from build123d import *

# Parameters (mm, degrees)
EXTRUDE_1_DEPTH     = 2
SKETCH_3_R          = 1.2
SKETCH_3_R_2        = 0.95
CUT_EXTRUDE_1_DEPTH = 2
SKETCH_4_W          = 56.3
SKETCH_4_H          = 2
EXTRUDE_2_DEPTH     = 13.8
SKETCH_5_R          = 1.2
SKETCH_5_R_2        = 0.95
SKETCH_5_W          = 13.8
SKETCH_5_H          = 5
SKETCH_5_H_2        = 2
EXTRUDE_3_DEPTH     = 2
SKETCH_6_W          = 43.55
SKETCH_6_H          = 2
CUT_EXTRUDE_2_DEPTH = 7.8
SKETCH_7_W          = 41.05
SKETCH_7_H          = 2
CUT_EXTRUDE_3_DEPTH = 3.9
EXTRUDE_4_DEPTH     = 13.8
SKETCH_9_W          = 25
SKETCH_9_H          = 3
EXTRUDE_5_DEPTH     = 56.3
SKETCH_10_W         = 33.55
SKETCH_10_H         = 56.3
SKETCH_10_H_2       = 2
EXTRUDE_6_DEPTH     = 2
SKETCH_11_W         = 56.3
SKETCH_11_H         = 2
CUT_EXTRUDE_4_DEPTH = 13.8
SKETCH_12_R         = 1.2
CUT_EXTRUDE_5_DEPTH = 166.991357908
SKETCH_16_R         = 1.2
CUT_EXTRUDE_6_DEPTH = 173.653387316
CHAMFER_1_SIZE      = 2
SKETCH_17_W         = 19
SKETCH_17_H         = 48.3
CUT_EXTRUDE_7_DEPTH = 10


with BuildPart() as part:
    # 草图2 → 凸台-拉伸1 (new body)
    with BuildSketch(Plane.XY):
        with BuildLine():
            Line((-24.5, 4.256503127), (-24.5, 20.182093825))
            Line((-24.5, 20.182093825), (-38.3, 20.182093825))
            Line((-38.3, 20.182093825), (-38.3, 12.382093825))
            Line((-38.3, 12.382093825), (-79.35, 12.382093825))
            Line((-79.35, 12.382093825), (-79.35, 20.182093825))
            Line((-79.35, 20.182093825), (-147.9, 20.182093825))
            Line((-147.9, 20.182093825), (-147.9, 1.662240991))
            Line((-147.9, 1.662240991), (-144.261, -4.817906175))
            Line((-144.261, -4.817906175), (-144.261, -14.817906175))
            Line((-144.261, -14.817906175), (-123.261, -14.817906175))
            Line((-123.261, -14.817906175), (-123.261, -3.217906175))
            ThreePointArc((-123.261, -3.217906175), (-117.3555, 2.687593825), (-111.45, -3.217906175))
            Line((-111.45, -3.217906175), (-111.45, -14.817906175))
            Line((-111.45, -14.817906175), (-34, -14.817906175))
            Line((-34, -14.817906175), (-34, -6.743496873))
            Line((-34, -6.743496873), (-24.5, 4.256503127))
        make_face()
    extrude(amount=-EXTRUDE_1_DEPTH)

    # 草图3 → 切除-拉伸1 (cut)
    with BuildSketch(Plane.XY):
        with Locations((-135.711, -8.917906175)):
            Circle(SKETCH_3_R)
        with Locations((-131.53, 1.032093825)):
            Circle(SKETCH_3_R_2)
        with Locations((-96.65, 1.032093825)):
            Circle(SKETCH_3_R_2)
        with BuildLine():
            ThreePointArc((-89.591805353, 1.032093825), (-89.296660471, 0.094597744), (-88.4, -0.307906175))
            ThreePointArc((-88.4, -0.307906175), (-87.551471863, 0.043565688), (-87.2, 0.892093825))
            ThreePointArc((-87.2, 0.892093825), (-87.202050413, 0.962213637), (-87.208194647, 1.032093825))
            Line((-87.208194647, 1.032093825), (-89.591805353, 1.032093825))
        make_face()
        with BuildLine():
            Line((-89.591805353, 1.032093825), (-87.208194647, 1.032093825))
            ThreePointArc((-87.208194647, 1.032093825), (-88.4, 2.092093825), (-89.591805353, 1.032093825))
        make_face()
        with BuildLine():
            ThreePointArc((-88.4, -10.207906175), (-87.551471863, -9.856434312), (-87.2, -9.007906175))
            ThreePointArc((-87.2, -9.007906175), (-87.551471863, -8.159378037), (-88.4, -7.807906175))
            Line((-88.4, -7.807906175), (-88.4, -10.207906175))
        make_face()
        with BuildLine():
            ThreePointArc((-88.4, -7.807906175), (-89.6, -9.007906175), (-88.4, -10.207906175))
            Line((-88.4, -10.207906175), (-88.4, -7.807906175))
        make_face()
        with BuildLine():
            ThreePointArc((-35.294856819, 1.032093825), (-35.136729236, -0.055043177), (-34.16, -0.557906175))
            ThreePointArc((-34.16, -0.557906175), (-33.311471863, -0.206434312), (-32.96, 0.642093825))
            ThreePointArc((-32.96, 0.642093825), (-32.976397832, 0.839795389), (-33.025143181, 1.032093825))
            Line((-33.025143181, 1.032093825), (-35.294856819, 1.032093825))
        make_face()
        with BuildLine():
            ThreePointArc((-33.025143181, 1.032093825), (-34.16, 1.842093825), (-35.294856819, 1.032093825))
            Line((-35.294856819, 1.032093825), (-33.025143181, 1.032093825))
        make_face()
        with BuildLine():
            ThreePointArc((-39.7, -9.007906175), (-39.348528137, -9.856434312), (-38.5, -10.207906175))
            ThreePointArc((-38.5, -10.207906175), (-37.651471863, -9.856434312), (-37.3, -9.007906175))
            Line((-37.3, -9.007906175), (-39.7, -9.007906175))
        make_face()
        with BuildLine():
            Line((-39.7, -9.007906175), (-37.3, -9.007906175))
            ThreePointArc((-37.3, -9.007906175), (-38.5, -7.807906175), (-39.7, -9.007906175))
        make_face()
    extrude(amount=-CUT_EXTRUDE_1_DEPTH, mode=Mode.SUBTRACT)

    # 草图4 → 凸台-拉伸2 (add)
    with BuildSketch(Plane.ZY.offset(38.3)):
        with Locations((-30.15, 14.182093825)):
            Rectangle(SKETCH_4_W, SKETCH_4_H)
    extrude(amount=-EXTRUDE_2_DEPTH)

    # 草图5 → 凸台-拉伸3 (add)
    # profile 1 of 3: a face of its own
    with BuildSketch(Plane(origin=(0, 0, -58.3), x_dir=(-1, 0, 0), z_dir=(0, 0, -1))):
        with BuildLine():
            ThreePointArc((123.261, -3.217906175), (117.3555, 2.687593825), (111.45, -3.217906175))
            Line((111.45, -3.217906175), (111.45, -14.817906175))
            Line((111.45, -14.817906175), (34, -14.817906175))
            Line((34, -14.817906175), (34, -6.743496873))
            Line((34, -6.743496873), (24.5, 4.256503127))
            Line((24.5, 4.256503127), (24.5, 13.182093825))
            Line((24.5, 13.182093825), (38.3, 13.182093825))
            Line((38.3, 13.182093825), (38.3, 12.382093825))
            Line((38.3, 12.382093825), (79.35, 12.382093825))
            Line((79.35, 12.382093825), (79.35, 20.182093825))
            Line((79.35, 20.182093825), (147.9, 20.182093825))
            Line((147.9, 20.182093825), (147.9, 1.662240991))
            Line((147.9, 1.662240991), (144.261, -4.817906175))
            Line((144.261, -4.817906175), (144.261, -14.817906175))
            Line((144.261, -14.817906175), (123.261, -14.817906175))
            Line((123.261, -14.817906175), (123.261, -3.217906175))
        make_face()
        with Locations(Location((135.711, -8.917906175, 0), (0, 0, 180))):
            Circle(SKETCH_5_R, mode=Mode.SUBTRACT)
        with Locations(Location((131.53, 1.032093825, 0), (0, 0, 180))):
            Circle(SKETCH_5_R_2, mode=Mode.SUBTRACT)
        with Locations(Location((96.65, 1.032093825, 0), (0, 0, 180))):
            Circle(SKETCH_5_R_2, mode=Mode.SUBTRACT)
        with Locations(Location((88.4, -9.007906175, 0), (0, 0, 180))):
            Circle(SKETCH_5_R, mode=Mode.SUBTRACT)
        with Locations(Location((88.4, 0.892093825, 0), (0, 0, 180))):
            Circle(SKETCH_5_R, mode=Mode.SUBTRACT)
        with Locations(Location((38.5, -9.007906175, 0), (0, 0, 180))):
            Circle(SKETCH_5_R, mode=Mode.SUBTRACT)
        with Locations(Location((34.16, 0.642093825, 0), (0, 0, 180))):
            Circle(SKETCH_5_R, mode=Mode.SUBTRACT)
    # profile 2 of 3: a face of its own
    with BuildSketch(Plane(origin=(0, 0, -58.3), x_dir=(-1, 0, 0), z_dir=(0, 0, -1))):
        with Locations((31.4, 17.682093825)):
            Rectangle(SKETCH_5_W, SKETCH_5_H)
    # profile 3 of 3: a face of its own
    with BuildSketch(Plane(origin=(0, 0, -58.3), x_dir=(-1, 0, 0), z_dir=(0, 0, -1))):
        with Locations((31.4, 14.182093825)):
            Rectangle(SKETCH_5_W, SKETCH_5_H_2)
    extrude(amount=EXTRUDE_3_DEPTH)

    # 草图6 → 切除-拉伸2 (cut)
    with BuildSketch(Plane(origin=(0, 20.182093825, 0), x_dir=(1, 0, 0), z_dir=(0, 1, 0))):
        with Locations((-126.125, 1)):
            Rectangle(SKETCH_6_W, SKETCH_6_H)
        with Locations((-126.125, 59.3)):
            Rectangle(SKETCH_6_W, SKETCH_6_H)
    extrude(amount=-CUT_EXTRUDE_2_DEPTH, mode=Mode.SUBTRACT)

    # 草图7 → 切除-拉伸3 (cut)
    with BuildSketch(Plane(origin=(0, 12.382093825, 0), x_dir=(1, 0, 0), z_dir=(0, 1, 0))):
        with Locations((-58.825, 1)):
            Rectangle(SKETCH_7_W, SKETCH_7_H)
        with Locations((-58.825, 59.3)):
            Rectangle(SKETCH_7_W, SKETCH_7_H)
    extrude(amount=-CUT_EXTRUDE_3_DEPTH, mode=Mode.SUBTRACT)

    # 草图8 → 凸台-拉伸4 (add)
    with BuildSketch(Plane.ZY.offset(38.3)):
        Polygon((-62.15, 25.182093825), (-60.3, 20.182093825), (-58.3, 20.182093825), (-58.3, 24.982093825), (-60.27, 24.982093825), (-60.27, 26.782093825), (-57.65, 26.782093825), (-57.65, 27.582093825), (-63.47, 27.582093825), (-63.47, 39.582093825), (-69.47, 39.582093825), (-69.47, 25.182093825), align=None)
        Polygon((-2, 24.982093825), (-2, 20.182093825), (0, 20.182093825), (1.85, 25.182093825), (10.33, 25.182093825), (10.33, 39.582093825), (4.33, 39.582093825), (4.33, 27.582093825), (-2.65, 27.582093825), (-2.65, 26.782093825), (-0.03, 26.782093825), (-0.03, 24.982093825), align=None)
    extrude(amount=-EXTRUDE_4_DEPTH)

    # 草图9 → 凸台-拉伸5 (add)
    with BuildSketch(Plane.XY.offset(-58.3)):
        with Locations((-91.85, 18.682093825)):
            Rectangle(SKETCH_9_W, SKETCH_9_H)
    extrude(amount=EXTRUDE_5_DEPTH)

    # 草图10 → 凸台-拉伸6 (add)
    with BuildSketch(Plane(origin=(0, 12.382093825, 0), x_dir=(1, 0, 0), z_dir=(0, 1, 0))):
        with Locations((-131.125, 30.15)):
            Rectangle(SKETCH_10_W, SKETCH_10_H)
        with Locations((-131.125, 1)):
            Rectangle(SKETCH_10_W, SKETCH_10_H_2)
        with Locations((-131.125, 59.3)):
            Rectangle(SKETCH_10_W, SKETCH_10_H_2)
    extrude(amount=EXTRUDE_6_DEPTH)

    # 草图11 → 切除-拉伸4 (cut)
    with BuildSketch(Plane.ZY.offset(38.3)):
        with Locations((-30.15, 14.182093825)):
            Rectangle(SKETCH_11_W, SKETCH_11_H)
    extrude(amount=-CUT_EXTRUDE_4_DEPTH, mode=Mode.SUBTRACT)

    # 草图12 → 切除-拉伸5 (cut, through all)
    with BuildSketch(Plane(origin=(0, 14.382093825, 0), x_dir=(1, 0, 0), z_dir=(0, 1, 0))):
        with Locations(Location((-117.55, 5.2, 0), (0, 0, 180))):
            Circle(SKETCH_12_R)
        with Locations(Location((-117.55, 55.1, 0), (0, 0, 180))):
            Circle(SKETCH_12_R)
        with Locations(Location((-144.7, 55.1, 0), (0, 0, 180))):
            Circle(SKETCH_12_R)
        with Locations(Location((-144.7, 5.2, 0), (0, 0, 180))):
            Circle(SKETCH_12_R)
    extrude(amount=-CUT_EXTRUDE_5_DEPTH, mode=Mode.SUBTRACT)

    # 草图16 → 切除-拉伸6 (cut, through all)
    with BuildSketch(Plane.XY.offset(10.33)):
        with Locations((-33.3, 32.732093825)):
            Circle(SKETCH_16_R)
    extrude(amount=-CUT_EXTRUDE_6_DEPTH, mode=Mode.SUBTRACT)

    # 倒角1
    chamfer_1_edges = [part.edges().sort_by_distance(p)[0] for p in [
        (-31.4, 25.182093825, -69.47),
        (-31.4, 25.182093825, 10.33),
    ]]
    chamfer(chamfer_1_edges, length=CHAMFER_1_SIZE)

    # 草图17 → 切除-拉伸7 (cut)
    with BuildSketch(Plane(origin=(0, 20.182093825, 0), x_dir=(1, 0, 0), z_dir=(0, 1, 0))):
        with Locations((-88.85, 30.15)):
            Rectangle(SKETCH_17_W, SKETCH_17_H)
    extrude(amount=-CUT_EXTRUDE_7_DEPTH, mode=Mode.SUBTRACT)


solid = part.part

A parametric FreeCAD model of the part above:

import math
import FreeCAD as App
import Part
import Sketcher

V = App.Vector
Q = App.Units.Quantity


def edges_at(feature, points):
    """Names of the edges that pass closest to the given points."""
    edges = feature.Shape.Edges
    near = lambda p: min(range(len(edges)), key=lambda i: edges[i].distToShape(Part.Vertex(*p))[0])
    return sorted({f"Edge{near(p) + 1}" for p in points})


def add_polygon(sketch, points):
    """Adds a closed chain of lines whose ends are joined by coincident constraints."""
    first, n = sketch.GeometryCount, len(points)
    for a, b in zip(points, points[1:] + points[:1]):
        sketch.addGeometry(Part.LineSegment(App.Vector(*a, 0), App.Vector(*b, 0)), False)
    for i in range(n):
        sketch.addConstraint(Sketcher.Constraint("Coincident", first + i, 2, first + (i + 1) % n, 1))

doc = App.newDocument("Part")
params = doc.addObject("Spreadsheet::Sheet", "Params")
for row, (alias, value) in enumerate([
    ("sketch1_width", "21 mm"),
    ("sketch1_height", "10 mm"),
    ("sketch1_width2", "13.8 mm"),
    ("sketch1_height2", "7.8 mm"),
    ("sketch1_height3", "11.6 mm"),
    ("pad1_length", "2 mm"),
    ("sketch2_diameter", "2.4 mm"),
    ("sketch2_diameter2", "1.9 mm"),
    ("pocket1_length", "2 mm"),
    ("sketch3_width", "2 mm"),
    ("sketch3_height", "56.3 mm"),
    ("pad2_length", "13.8 mm"),
    ("sketch4_diameter", "2.4 mm"),
    ("sketch4_diameter2", "1.9 mm"),
    ("sketch4_width", "21 mm"),
    ("sketch4_height", "10 mm"),
    ("sketch4_width2", "13.8 mm"),
    ("pad3_length", "2 mm"),
    ("sketch5_height", "2 mm"),
    ("sketch5_width", "43.55 mm"),
    ("pocket2_length", "7.8 mm"),
    ("sketch6_height", "2 mm"),
    ("sketch6_width", "41.05 mm"),
    ("pocket3_length", "3.9 mm"),
    ("sketch7_width", "12 mm"),
    ("sketch7_height", "2 mm"),
    ("sketch7_height2", "6 mm"),
    ("sketch7_width2", "4.8 mm"),
    ("sketch7_width3", "1.8 mm"),
    ("pad4_length", "13.8 mm"),
    ("sketch8_width", "25 mm"),
    ("sketch8_height", "3 mm"),
    ("pad5_length", "56.3 mm"),
    ("sketch9_height", "60.3 mm"),
    ("sketch9_width", "33.55 mm"),
    ("pad6_length", "2 mm"),
    ("sketch10_width", "2 mm"),
    ("sketch10_height", "56.3 mm"),
    ("pocket4_length", "13.8 mm"),
    ("sketch11_diameter", "2.4 mm"),
    ("sketch12_diameter", "2.4 mm"),
    ("chamfer_size", "2 mm"),
    ("sketch13_width", "19 mm"),
    ("sketch13_height", "48.3 mm"),
    ("pocket7_length", "10 mm"),
], start=1):
    params.set(f"A{row}", alias)
    params.set(f"B{row}", "=" + value)
    params.setAlias(f"B{row}", alias)

body = doc.addObject("PartDesign::Body", "Body")

sketch1 = doc.addObject("Sketcher::SketchObject", "Sketch")
body.addObject(sketch1)
sketch1.AttachmentSupport = (doc.XY_Plane, [""])
sketch1.MapMode = "FlatFace"
sketch1.addGeometry([
    Part.LineSegment(V(-24, 4, 0), V(-24, 20, 0)),
    Part.LineSegment(V(-24, 20, 0), V(-38, 20, 0)),
    Part.LineSegment(V(-38, 20, 0), V(-38, 12, 0)),
    Part.LineSegment(V(-38, 12, 0), V(-79, 12, 0)),
    Part.LineSegment(V(-79, 12, 0), V(-79, 20, 0)),
    Part.LineSegment(V(-79, 20, 0), V(-148, 20, 0)),
    Part.LineSegment(V(-148, 20, 0), V(-148, 2, 0)),
    Part.LineSegment(V(-148, 2, 0), V(-144, -5, 0)),
    Part.LineSegment(V(-144, -5, 0), V(-144, -15, 0)),
    Part.LineSegment(V(-144, -15, 0), V(-123, -15, 0)),
    Part.LineSegment(V(-123, -15, 0), V(-123, -3, 0)),
    Part.ArcOfCircle(Part.Circle(V(-117, -3, 0), V(0, 0, 1), 6), math.radians(0), math.radians(180)),
    Part.LineSegment(V(-111, -3, 0), V(-111, -15, 0)),
    Part.LineSegment(V(-111, -15, 0), V(-34, -15, 0)),
    Part.LineSegment(V(-34, -15, 0), V(-34, -7, 0)),
    Part.LineSegment(V(-34, -7, 0), V(-24, 4, 0)),
], False)
sketch1.addConstraint([
    Sketcher.Constraint("Coincident", 0, 2, 1, 1),
    Sketcher.Constraint("Coincident", 1, 2, 2, 1),
    Sketcher.Constraint("Coincident", 2, 2, 3, 1),
    Sketcher.Constraint("Coincident", 3, 2, 4, 1),
    Sketcher.Constraint("Coincident", 4, 2, 5, 1),
    Sketcher.Constraint("Coincident", 5, 2, 6, 1),
    Sketcher.Constraint("Coincident", 6, 2, 7, 1),
    Sketcher.Constraint("Coincident", 7, 2, 8, 1),
    Sketcher.Constraint("Coincident", 8, 2, 9, 1),
    Sketcher.Constraint("Coincident", 9, 2, 10, 1),
    Sketcher.Constraint("Tangent", 10, 2, 11, 2),
    Sketcher.Constraint("Tangent", 11, 1, 12, 1),
    Sketcher.Constraint("Coincident", 12, 2, 13, 1),
    Sketcher.Constraint("Coincident", 13, 2, 14, 1),
    Sketcher.Constraint("Coincident", 14, 2, 15, 1),
    Sketcher.Constraint("Coincident", 15, 2, 0, 1),
    Sketcher.Constraint("Vertical", 0),
    Sketcher.Constraint("Horizontal", 1),
    Sketcher.Constraint("Vertical", 2),
    Sketcher.Constraint("Horizontal", 3),
    Sketcher.Constraint("Vertical", 4),
    Sketcher.Constraint("Horizontal", 5),
    Sketcher.Constraint("Vertical", 6),
    Sketcher.Constraint("Vertical", 8),
    Sketcher.Constraint("Horizontal", 9),
    Sketcher.Constraint("Vertical", 10),
    Sketcher.Constraint("Vertical", 12),
    Sketcher.Constraint("Horizontal", 13),
    Sketcher.Constraint("Vertical", 14),
    Sketcher.Constraint("Horizontal", 1, 2, 4, 2),
    Sketcher.Constraint("Horizontal", 9, 2, 12, 2),
    Sketcher.Constraint("DistanceX", 9, 1, 9, 2, Q("21 mm")),
    Sketcher.Constraint("DistanceY", 8, 2, 8, 1, Q("10 mm")),
    Sketcher.Constraint("DistanceX", 1, 2, 1, 1, Q("13.8 mm")),
    Sketcher.Constraint("DistanceY", 2, 2, 2, 1, Q("7.8 mm")),
    Sketcher.Constraint("DistanceY", 10, 1, 10, 2, Q("11.6 mm")),
    Sketcher.Constraint("DistanceX", 13, 2, -1, 1, Q("34 mm")),
    Sketcher.Constraint("DistanceY", 7, 2, 5, 2, Q("25 mm")),
    Sketcher.Constraint("DistanceY", 14, 2, 15, 2, Q("11 mm")),
    Sketcher.Constraint("DistanceX", 3, 2, 3, 1, Q("41.05 mm")),
    Sketcher.Constraint("DistanceX", 5, 2, 5, 1, Q("68.55 mm")),
    Sketcher.Constraint("DistanceX", 13, 1, 13, 2, Q("77.45 mm")),
    Sketcher.Constraint("DistanceX", 0, 2, -1, 1, Q("24.5 mm")),
    Sketcher.Constraint("Radius", 11, Q("5.9055 mm")),
    Sketcher.Constraint("Distance", 7, Q("7.432 mm")),
    Sketcher.Constraint("DistanceY", 0, 1, 0, 2, Q("15.925591 mm")),
    Sketcher.Constraint("DistanceY", -1, 1, 6, 2, Q("1.662241 mm")),
])
sketch1.setExpression("Constraints[31]", "Params.sketch1_width")
sketch1.setExpression("Constraints[32]", "Params.sketch1_height")
sketch1.setExpression("Constraints[33]", "Params.sketch1_width2")
sketch1.setExpression("Constraints[34]", "Params.sketch1_height2")
sketch1.setExpression("Constraints[35]", "Params.sketch1_height3")
pad1 = doc.addObject("PartDesign::Pad", "Pad")
body.addObject(pad1)
pad1.Profile = sketch1
pad1.setExpression("Length", "Params.pad1_length")
pad1.Reversed = True

sketch2 = doc.addObject("Sketcher::SketchObject", "Sketch001")
body.addObject(sketch2)
sketch2.AttachmentSupport = (doc.XY_Plane, [""])
sketch2.MapMode = "FlatFace"
sketch2.addGeometry([
    Part.Circle(V(-135.71, -8.92, 0), V(0, 0, 1), 1.2),
    Part.Circle(V(-131.53, 1.03, 0), V(0, 0, 1), 0.95),
    Part.Circle(V(-96.65, 1.03, 0), V(0, 0, 1), 0.95),
    Part.ArcOfCircle(Part.Circle(V(-88.4, 0.89, 0), V(0, 0, 1), 1.2), math.radians(-90), math.radians(0)),
    Part.ArcOfCircle(Part.Circle(V(-88.4, 0.89, 0), V(0, 0, 1), 1.2), math.radians(0), math.radians(6.7)),
    Part.ArcOfCircle(Part.Circle(V(-88.4, 0.89, 0), V(0, 0, 1), 1.2), math.radians(7), math.radians(173)),
    Part.ArcOfCircle(Part.Circle(V(-88.4, 0.89, 0), V(0, 0, 1), 1.2), math.radians(173), math.radians(270)),
    Part.ArcOfCircle(Part.Circle(V(-88.4, -9.01, 0), V(0, 0, 1), 1.2), math.radians(-90), math.radians(0)),
    Part.ArcOfCircle(Part.Circle(V(-88.4, -9.01, 0), V(0, 0, 1), 1.2), math.radians(0), math.radians(90)),
    Part.ArcOfCircle(Part.Circle(V(-88.4, -9.01, 0), V(0, 0, 1), 1.2), math.radians(90), math.radians(270)),
    Part.ArcOfCircle(Part.Circle(V(-34.16, 0.64, 0), V(0, 0, 1), 1.2), math.radians(-90), math.radians(0)),
    Part.ArcOfCircle(Part.Circle(V(-34.16, 0.64, 0), V(0, 0, 1), 1.2), math.radians(0), math.radians(18.97)),
    Part.ArcOfCircle(Part.Circle(V(-34.16, 0.64, 0), V(0, 0, 1), 1.2), math.radians(19), math.radians(161)),
    Part.ArcOfCircle(Part.Circle(V(-34.16, 0.64, 0), V(0, 0, 1), 1.2), math.radians(161), math.radians(270)),
    Part.ArcOfCircle(Part.Circle(V(-38.5, -9.01, 0), V(0, 0, 1), 1.2), math.radians(-180), math.radians(-90)),
    Part.ArcOfCircle(Part.Circle(V(-38.5, -9.01, 0), V(0, 0, 1), 1.2), math.radians(-90), math.radians(0)),
    Part.ArcOfCircle(Part.Circle(V(-38.5, -9.01, 0), V(0, 0, 1), 1.2), math.radians(0), math.radians(180)),
], False)
sketch2.addConstraint([
    Sketcher.Constraint("Tangent", 3, 2, 4, 1),
    Sketcher.Constraint("Tangent", 4, 2, 5, 1),
    Sketcher.Constraint("Tangent", 5, 2, 6, 1),
    Sketcher.Constraint("Tangent", 6, 2, 3, 1),
    Sketcher.Constraint("Tangent", 7, 2, 8, 1),
    Sketcher.Constraint("Tangent", 8, 2, 9, 1),
    Sketcher.Constraint("Tangent", 9, 2, 7, 1),
    Sketcher.Constraint("Tangent", 10, 2, 11, 1),
    Sketcher.Constraint("Tangent", 11, 2, 12, 1),
    Sketcher.Constraint("Tangent", 12, 2, 13, 1),
    Sketcher.Constraint("Tangent", 13, 2, 10, 1),
    Sketcher.Constraint("Tangent", 14, 2, 15, 1),
    Sketcher.Constraint("Tangent", 15, 2, 16, 1),
    Sketcher.Constraint("Tangent", 16, 2, 14, 1),
    Sketcher.Constraint("Equal", 1, 2),
    Sketcher.Constraint("Equal", 0, 3),
    Sketcher.Constraint("Equal", 3, 4),
    Sketcher.Constraint("Equal", 6, 7),
    Sketcher.Constraint("Equal", 9, 10),
    Sketcher.Constraint("Equal", 10, 11),
    Sketcher.Constraint("Equal", 13, 14),
    Sketcher.Constraint("Horizontal", 1, 3, 2, 3),
    Sketcher.Constraint("Horizontal", 9, 3, 14, 3),
    Sketcher.Constraint("Horizontal", 6, 3, 3, 2),
    Sketcher.Constraint("Horizontal", 2, 3, 4, 2),
    Sketcher.Constraint("Horizontal", 4, 2, 5, 2),
    Sketcher.Constraint("Horizontal", 16, 3, 7, 2),
    Sketcher.Constraint("Horizontal", 13, 3, 10, 2),
    Sketcher.Constraint("Horizontal", 5, 2, 11, 2),
    Sketcher.Constraint("Horizontal", 11, 2, 12, 2),
    Sketcher.Constraint("Horizontal", 7, 2, 15, 2),
    Sketcher.Constraint("Horizontal", 15, 2, 16, 2),
    Sketcher.Constraint("Vertical", 6, 3, 7, 3),
    Sketcher.Constraint("Vertical", 9, 3, 6, 2),
    Sketcher.Constraint("Vertical", 6, 2, 8, 2),
    Sketcher.Constraint("Vertical", 8, 2, 9, 2),
    Sketcher.Constraint("Vertical", 12, 3, 13, 2),
    Sketcher.Constraint("Vertical", 16, 3, 14, 2),
    Sketcher.Constraint("Diameter", 0, Q("2.4 mm")),
    Sketcher.Constraint("Diameter", 1, Q("1.9 mm")),
    Sketcher.Constraint("DistanceX", 3, 3, -1, 1, Q("88.4 mm")),
    Sketcher.Constraint("DistanceX", 14, 3, -1, 1, Q("38.5 mm")),
    Sketcher.Constraint("DistanceY", 7, 3, 5, 3, Q("9.9 mm")),
    Sketcher.Constraint("DistanceX", 1, 3, -1, 1, Q("131.53 mm")),
    Sketcher.Constraint("DistanceX", 2, 3, -1, 1, Q("96.65 mm")),
    Sketcher.Constraint("DistanceX", 10, 3, -1, 1, Q("34.16 mm")),
    Sketcher.Constraint("DistanceY", 0, 3, 1, 3, Q("9.95 mm")),
    Sketcher.Constraint("DistanceY", 3, 3, 2, 3, Q("0.14 mm")),
    Sketcher.Constraint("DistanceY", 10, 3, 4, 3, Q("0.25 mm")),
    Sketcher.Constraint("DistanceX", 0, 3, -1, 1, Q("135.711 mm")),
    Sketcher.Constraint("DistanceY", 0, 3, -1, 1, Q("8.917906 mm")),
])
sketch2.setExpression("Constraints[38]", "Params.sketch2_diameter")
sketch2.setExpression("Constraints[39]", "Params.sketch2_diameter2")
pocket1 = doc.addObject("PartDesign::Pocket", "Pocket")
body.addObject(pocket1)
pocket1.Profile = sketch2
pocket1.setExpression("Length", "Params.pocket1_length")

sketch3 = doc.addObject("Sketcher::SketchObject", "Sketch002")
body.addObject(sketch3)
sketch3.AttachmentSupport = (doc.YZ_Plane, [""])
sketch3.MapMode = "FlatFace"
sketch3.AttachmentOffset = App.Placement(V(0, 0, -38.3), App.Rotation())
add_polygon(sketch3, [(15.2, -58.3), (13.2, -58.3), (13.2, -2), (15.2, -2)])
sketch3.addConstraint([
    Sketcher.Constraint("Horizontal", 0),
    Sketcher.Constraint("Vertical", 1),
    Sketcher.Constraint("Horizontal", 2),
    Sketcher.Constraint("Vertical", 3),
    Sketcher.Constraint("DistanceX", 0, 2, 0, 1, Q("2 mm")),
    Sketcher.Constraint("DistanceY", 1, 1, 1, 2, Q("56.3 mm")),
    Sketcher.Constraint("DistanceY", 1, 2, -1, 1, Q("2 mm")),
    Sketcher.Constraint("DistanceX", -1, 1, 0, 2, Q("13.182094 mm")),
])
sketch3.setExpression("Constraints[8]", "Params.sketch3_width")
sketch3.setExpression("Constraints[9]", "Params.sketch3_height")
pad2 = doc.addObject("PartDesign::Pad", "Pad001")
body.addObject(pad2)
pad2.Profile = sketch3
pad2.setExpression("Length", "Params.pad2_length")

sketch4 = doc.addObject("Sketcher::SketchObject", "Sketch003")
body.addObject(sketch4)
sketch4.AttachmentSupport = (doc.XY_Plane, [""])
sketch4.MapMode = "FlatFace"
sketch4.AttachmentOffset = App.Placement(V(0, 0, -58.3), App.Rotation())
sketch4.addGeometry([
    Part.ArcOfCircle(Part.Circle(V(-117.4, -3.2, 0), V(0, 0, 1), 5.9), math.radians(0), math.radians(180)),
    Part.LineSegment(V(-123.3, -3.2, 0), V(-123.3, -14.8, 0)),
    Part.LineSegment(V(-123.3, -14.8, 0), V(-144.3, -14.8, 0)),
    Part.LineSegment(V(-144.3, -14.8, 0), V(-144.3, -4.8, 0)),
    Part.LineSegment(V(-144.3, -4.8, 0), V(-147.9, 1.7, 0)),
    Part.LineSegment(V(-147.9, 1.7, 0), V(-147.9, 20.2, 0)),
    Part.LineSegment(V(-147.9, 20.2, 0), V(-79.3, 20.2, 0)),
    Part.LineSegment(V(-79.3, 20.2, 0), V(-79.3, 12.4, 0)),
    Part.LineSegment(V(-79.3, 12.4, 0), V(-38.3, 12.4, 0)),
    Part.LineSegment(V(-38.3, 12.4, 0), V(-38.3, 20.2, 0)),
    Part.LineSegment(V(-38.3, 20.2, 0), V(-24.5, 20.2, 0)),
    Part.LineSegment(V(-24.5, 20.2, 0), V(-24.5, 4.3, 0)),
    Part.LineSegment(V(-24.5, 4.3, 0), V(-34, -6.7, 0)),
    Part.LineSegment(V(-34, -6.7, 0), V(-34, -14.8, 0)),
    Part.LineSegment(V(-34, -14.8, 0), V(-111.5, -14.8, 0)),
    Part.LineSegment(V(-111.5, -14.8, 0), V(-111.5, -3.2, 0)),
    Part.Circle(V(-135.7, -8.9, 0), V(0, 0, 1), 1.2),
    Part.Circle(V(-88.4, -9, 0), V(0, 0, 1), 1.2),
    Part.Circle(V(-38.5, -9, 0), V(0, 0, 1), 1.2),
    Part.Circle(V(-131.5, 1, 0), V(0, 0, 1), 0.9),
    Part.Circle(V(-96.7, 1, 0), V(0, 0, 1), 0.9),
    Part.Circle(V(-88.4, 0.9, 0), V(0, 0, 1), 1.2),
    Part.Circle(V(-34.2, 0.6, 0), V(0, 0, 1), 1.2),
], False)
sketch4.addConstraint([
    Sketcher.Constraint("Tangent", 0, 2, 1, 1),
    Sketcher.Constraint("Coincident", 1, 2, 2, 1),
    Sketcher.Constraint("Coincident", 2, 2, 3, 1),
    Sketcher.Constraint("Coincident", 3, 2, 4, 1),
    Sketcher.Constraint("Coincident", 4, 2, 5, 1),
    Sketcher.Constraint("Coincident", 5, 2, 6, 1),
    Sketcher.Constraint("Coincident", 6, 2, 7, 1),
    Sketcher.Constraint("Coincident", 7, 2, 8, 1),
    Sketcher.Constraint("Coincident", 8, 2, 9, 1),
    Sketcher.Constraint("Coincident", 9, 2, 10, 1),
    Sketcher.Constraint("Coincident", 10, 2, 11, 1),
    Sketcher.Constraint("Coincident", 11, 2, 12, 1),
    Sketcher.Constraint("Coincident", 12, 2, 13, 1),
    Sketcher.Constraint("Coincident", 13, 2, 14, 1),
    Sketcher.Constraint("Coincident", 14, 2, 15, 1),
    Sketcher.Constraint("Tangent", 15, 2, 0, 1),
    Sketcher.Constraint("Vertical", 1),
    Sketcher.Constraint("Horizontal", 2),
    Sketcher.Constraint("Vertical", 3),
    Sketcher.Constraint("Vertical", 5),
    Sketcher.Constraint("Horizontal", 6),
    Sketcher.Constraint("Vertical", 7),
    Sketcher.Constraint("Horizontal", 8),
    Sketcher.Constraint("Vertical", 9),
    Sketcher.Constraint("Horizontal", 10),
    Sketcher.Constraint("Vertical", 11),
    Sketcher.Constraint("Vertical", 13),
    Sketcher.Constraint("Horizontal", 14),
    Sketcher.Constraint("Vertical", 15),
    Sketcher.Constraint("Equal", 16, 17),
    Sketcher.Constraint("Equal", 17, 18),
    Sketcher.Constraint("Equal", 19, 20),
    Sketcher.Constraint("Equal", 18, 21),
    Sketcher.Constraint("Equal", 21, 22),
    Sketcher.Constraint("Horizontal", 17, 3, 18, 3),
    Sketcher.Constraint("Horizontal", 19, 3, 20, 3),
    Sketcher.Constraint("Horizontal", 6, 2, 9, 2),
    Sketcher.Constraint("Horizontal", 2, 2, 13, 2),
    Sketcher.Constraint("Vertical", 17, 3, 21, 3),
    Sketcher.Constraint("Diameter", 16, Q("2.4 mm")),
    Sketcher.Constraint("Diameter", 19, Q("1.9 mm")),
    Sketcher.Constraint("DistanceX", 2, 2, 2, 1, Q("21 mm")),
    Sketcher.Constraint("DistanceY", 3, 1, 3, 2, Q("10 mm")),
    Sketcher.Constraint("DistanceX", 10, 1, 10, 2, Q("13.8 mm")),
    Sketcher.Constraint("DistanceY", 1, 2, 1, 1, Q("11.6 mm")),
    Sketcher.Constraint("DistanceY", 7, 2, 7, 1, Q("7.8 mm")),
    Sketcher.Constraint("DistanceX", 12, 2, -1, 1, Q("34 mm")),
    Sketcher.Constraint("DistanceY", 3, 2, 5, 2, Q("25 mm")),
    Sketcher.Constraint("DistanceX", 18, 3, 10, 2, Q("14 mm")),
    Sketcher.Constraint("DistanceY", 12, 2, 11, 2, Q("11 mm")),
    Sketcher.Constraint("DistanceX", 6, 1, 6, 2, Q("68.55 mm")),
    Sketcher.Constraint("DistanceX", 8, 1, 8, 2, Q("41.05 mm")),
    Sketcher.Constraint("DistanceX", 14, 2, 14, 1, Q("77.45 mm")),
    Sketcher.Constraint("DistanceX", 17, 3, -1, 1, Q("88.4 mm")),
    Sketcher.Constraint("DistanceX", 18, 3, -1, 1, Q("38.5 mm")),
    Sketcher.Constraint("Radius", 0, Q("5.9055 mm")),
    Sketcher.Constraint("DistanceY", 16, 3, 0, 3, Q("5.7 mm")),
    Sketcher.Constraint("DistanceY", 17, 3, 21, 3, Q("9.9 mm")),
    Sketcher.Constraint("DistanceX", 20, 3, 6, 2, Q("17.3 mm")),
    Sketcher.Constraint("DistanceX", 19, 3, -1, 1, Q("131.53 mm")),
    Sketcher.Constraint("DistanceX", 22, 3, -1, 1, Q("34.16 mm")),
    Sketcher.Constraint("DistanceY", 17, 3, 0, 3, Q("5.79 mm")),
    Sketcher.Constraint("DistanceY", 16, 3, 19, 3, Q("9.95 mm")),
    Sketcher.Constraint("DistanceY", 18, 3, 22, 3, Q("9.65 mm")),
    Sketcher.Constraint("DistanceX", 16, 3, 0, 2, Q("12.45 mm")),
    Sketcher.Constraint("Distance", 4, Q("7.432 mm")),
    Sketcher.Constraint("DistanceY", 11, 2, 11, 1, Q("15.925591 mm")),
    Sketcher.Constraint("DistanceY", -1, 1, 4, 2, Q("1.662241 mm")),
])
sketch4.setExpression("Constraints[39]", "Params.sketch4_diameter")
sketch4.setExpression("Constraints[40]", "Params.sketch4_diameter2")
sketch4.setExpression("Constraints[41]", "Params.sketch4_width")
sketch4.setExpression("Constraints[42]", "Params.sketch4_height")
sketch4.setExpression("Constraints[43]", "Params.sketch4_width2")
pad3 = doc.addObject("PartDesign::Pad", "Pad002")
body.addObject(pad3)
pad3.Profile = sketch4
pad3.setExpression("Length", "Params.pad3_length")
pad3.Reversed = True

sketch5 = doc.addObject("Sketcher::SketchObject", "Sketch004")
body.addObject(sketch5)
sketch5.AttachmentSupport = (doc.XZ_Plane, [""])
sketch5.MapMode = "FlatFace"
sketch5.AttachmentOffset = App.Placement(V(0, 0, -20.182094), App.Rotation())
add_polygon(sketch5, [(-147.9, -2), (-147.9, 0), (-104.3, 0), (-104.3, -2)])
add_polygon(sketch5, [(-147.9, -60.3), (-147.9, -58.3), (-104.3, -58.3), (-104.3, -60.3)])
sketch5.addConstraint([
    Sketcher.Constraint("Vertical", 0),
    Sketcher.Constraint("Horizontal", 1),
    Sketcher.Constraint("Vertical", 2),
    Sketcher.Constraint("Horizontal", 3),
    Sketcher.Constraint("Vertical", 4),
    Sketcher.Constraint("Horizontal", 5),
    Sketcher.Constraint("Vertical", 6),
    Sketcher.Constraint("Horizontal", 7),
    Sketcher.Constraint("PointOnObject", 0, 2, -1),
    Sketcher.Constraint("Vertical", 3, 2, 4, 2),
    Sketcher.Constraint("Vertical", 2, 2, 5, 2),
    Sketcher.Constraint("Equal", 2, 4),
    Sketcher.Constraint("DistanceY", 0, 1, 0, 2, Q("2 mm")),
    Sketcher.Constraint("DistanceX", 1, 1, 1, 2, Q("43.55 mm")),
    Sketcher.Constraint("DistanceX", 0, 2, -1, 1, Q("147.9 mm")),
    Sketcher.Constraint("DistanceY", 4, 2, -1, 1, Q("58.3 mm")),
])
sketch5.setExpression("Constraints[20]", "Params.sketch5_height")
sketch5.setExpression("Constraints[21]", "Params.sketch5_width")
pocket2 = doc.addObject("PartDesign::Pocket", "Pocket001")
body.addObject(pocket2)
pocket2.Profile = sketch5
pocket2.setExpression("Length", "Params.pocket2_length")
pocket2.Reversed = True

sketch6 = doc.addObject("Sketcher::SketchObject", "Sketch005")
body.addObject(sketch6)
sketch6.AttachmentSupport = (doc.XZ_Plane, [""])
sketch6.MapMode = "FlatFace"
sketch6.AttachmentOffset = App.Placement(V(0, 0, -12.382094), App.Rotation())
add_polygon(sketch6, [(-79.3, -2), (-79.3, 0), (-38.3, 0), (-38.3, -2)])
add_polygon(sketch6, [(-79.3, -60.3), (-79.3, -58.3), (-38.3, -58.3), (-38.3, -60.3)])
sketch6.addConstraint([
    Sketcher.Constraint("Vertical", 0),
    Sketcher.Constraint("Horizontal", 1),
    Sketcher.Constraint("Vertical", 2),
    Sketcher.Constraint("Horizontal", 3),
    Sketcher.Constraint("Vertical", 4),
    Sketcher.Constraint("Horizontal", 5),
    Sketcher.Constraint("Vertical", 6),
    Sketcher.Constraint("Horizontal", 7),
    Sketcher.Constraint("PointOnObject", 0, 2, -1),
    Sketcher.Constraint("Vertical", 3, 2, 4, 2),
    Sketcher.Constraint("Vertical", 2, 2, 5, 2),
    Sketcher.Constraint("Equal", 2, 4),
    Sketcher.Constraint("DistanceY", 0, 1, 0, 2, Q("2 mm")),
    Sketcher.Constraint("DistanceX", 1, 1, 1, 2, Q("41.05 mm")),
    Sketcher.Constraint("DistanceX", 1, 2, -1, 1, Q("38.3 mm")),
    Sketcher.Constraint("DistanceY", 4, 2, -1, 1, Q("58.3 mm")),
])
sketch6.setExpression("Constraints[20]", "Params.sketch6_height")
sketch6.setExpression("Constraints[21]", "Params.sketch6_width")
pocket3 = doc.addObject("PartDesign::Pocket", "Pocket002")
body.addObject(pocket3)
pocket3.Profile = sketch6
pocket3.setExpression("Length", "Params.pocket3_length")
pocket3.Reversed = True

sketch7 = doc.addObject("Sketcher::SketchObject", "Sketch006")
body.addObject(sketch7)
sketch7.AttachmentSupport = (doc.YZ_Plane, [""])
sketch7.MapMode = "FlatFace"
sketch7.AttachmentOffset = App.Placement(V(0, 0, -38.3), App.Rotation())
add_polygon(sketch7, [(25.2, -62.1), (20.2, -60.3), (20.2, -58.3), (25, -58.3), (25, -60.3), (26.8, -60.3), (26.8, -57.6), (27.6, -57.6), (27.6, -63.5), (39.6, -63.5), (39.6, -69.5), (25.2, -69.5)])
add_polygon(sketch7, [(25, -2), (20.2, -2), (20.2, 0), (25.2, 1.9), (25.2, 10.3), (39.6, 10.3), (39.6, 4.3), (27.6, 4.3), (27.6, -2.6), (26.8, -2.6), (26.8, 0), (25, 0)])
sketch7.addConstraint([
    Sketcher.Constraint("Vertical", 1),
    Sketcher.Constraint("Horizontal", 2),
    Sketcher.Constraint("Vertical", 3),
    Sketcher.Constraint("Horizontal", 4),
    Sketcher.Constraint("Vertical", 5),
    Sketcher.Constraint("Horizontal", 6),
    Sketcher.Constraint("Vertical", 7),
    Sketcher.Constraint("Horizontal", 8),
    Sketcher.Constraint("Vertical", 9),
    Sketcher.Constraint("Horizontal", 10),
    Sketcher.Constraint("Vertical", 11),
    Sketcher.Constraint("Horizontal", 12),
    Sketcher.Constraint("Vertical", 13),
    Sketcher.Constraint("Vertical", 15),
    Sketcher.Constraint("Horizontal", 16),
    Sketcher.Constraint("Vertical", 17),
    Sketcher.Constraint("Horizontal", 18),
    Sketcher.Constraint("Vertical", 19),
    Sketcher.Constraint("Horizontal", 20),
    Sketcher.Constraint("Vertical", 21),
    Sketcher.Constraint("Horizontal", 22),
    Sketcher.Constraint("Vertical", 23),
    Sketcher.Constraint("PointOnObject", 13, 2, -1),
    Sketcher.Constraint("Vertical", 1, 2, 12, 2),
    Sketcher.Constraint("Vertical", 11, 2, 14, 2),
    Sketcher.Constraint("Vertical", 9, 2, 16, 2),
    Sketcher.Constraint("Vertical", 7, 2, 18, 2),
    Sketcher.Constraint("Vertical", 5, 2, 20, 2),
    Sketcher.Constraint("Vertical", 3, 2, 22, 2),
    Sketcher.Constraint("Equal", 1, 13),
    Sketcher.Constraint("Equal", 9, 17),
    Sketcher.Constraint("Equal", 5, 21),
    Sketcher.Constraint("Equal", 3, 23),
    Sketcher.Constraint("Equal", 0, 14),
    Sketcher.Constraint("DistanceX", 8, 1, 8, 2, Q("12 mm")),
    Sketcher.Constraint("DistanceY", 1, 1, 1, 2, Q("2 mm")),
    Sketcher.Constraint("DistanceY", 9, 2, 9, 1, Q("6 mm")),
    Sketcher.Constraint("DistanceX", 2, 1, 2, 2, Q("4.8 mm")),
    Sketcher.Constraint("DistanceX", 4, 1, 4, 2, Q("1.8 mm")),
    Sketcher.Constraint("DistanceX", 6, 1, 6, 2, Q("0.8 mm")),
    Sketcher.Constraint("DistanceX", 10, 2, 10, 1, Q("14.4 mm")),
    Sketcher.Constraint("DistanceY", 3, 2, 3, 1, Q("1.97 mm")),
    Sketcher.Constraint("DistanceY", 5, 1, 5, 2, Q("2.62 mm")),
    Sketcher.Constraint("DistanceY", 7, 2, 7, 1, Q("5.82 mm")),
    Sketcher.Constraint("DistanceY", 11, 1, 11, 2, Q("7.32 mm")),
    Sketcher.Constraint("DistanceY", 15, 1, 15, 2, Q("8.48 mm")),
    Sketcher.Constraint("DistanceY", 0, 2, -1, 1, Q("60.3 mm")),
    Sketcher.Constraint("DistanceX", -1, 1, 0, 2, Q("20.182094 mm")),
])
sketch7.setExpression("Constraints[58]", "Params.sketch7_width")
sketch7.setExpression("Constraints[59]", "Params.sketch7_height")
sketch7.setExpression("Constraints[60]", "Params.sketch7_height2")
sketch7.setExpression("Constraints[61]", "Params.sketch7_width2")
sketch7.setExpression("Constraints[62]", "Params.sketch7_width3")
pad4 = doc.addObject("PartDesign::Pad", "Pad003")
body.addObject(pad4)
pad4.Profile = sketch7
pad4.setExpression("Length", "Params.pad4_length")

sketch8 = doc.addObject("Sketcher::SketchObject", "Sketch007")
body.addObject(sketch8)
sketch8.AttachmentSupport = (doc.XY_Plane, [""])
sketch8.MapMode = "FlatFace"
sketch8.AttachmentOffset = App.Placement(V(0, 0, -58.3), App.Rotation())
add_polygon(sketch8, [(-104.3, 20.2), (-104.3, 17.2), (-79.3, 17.2), (-79.3, 20.2)])
sketch8.addConstraint([
    Sketcher.Constraint("Vertical", 0),
    Sketcher.Constraint("Horizontal", 1),
    Sketcher.Constraint("Vertical", 2),
    Sketcher.Constraint("Horizontal", 3),
    Sketcher.Constraint("DistanceX", 1, 1, 1, 2, Q("25 mm")),
    Sketcher.Constraint("DistanceY", 0, 2, 0, 1, Q("3 mm")),
    Sketcher.Constraint("DistanceX", 0, 2, -1, 1, Q("104.35 mm")),
    Sketcher.Constraint("DistanceY", -1, 1, 0, 2, Q("17.182094 mm")),
])
sketch8.setExpression("Constraints[8]", "Params.sketch8_width")
sketch8.setExpression("Constraints[9]", "Params.sketch8_height")
pad5 = doc.addObject("PartDesign::Pad", "Pad004")
body.addObject(pad5)
pad5.Profile = sketch8
pad5.setExpression("Length", "Params.pad5_length")

sketch9 = doc.addObject("Sketcher::SketchObject", "Sketch008")
body.addObject(sketch9)
sketch9.AttachmentSupport = (doc.XZ_Plane, [""])
sketch9.MapMode = "FlatFace"
sketch9.AttachmentOffset = App.Placement(V(0, 0, -12.382094), App.Rotation())
add_polygon(sketch9, [(-148, 0), (-114, 0), (-114, -60), (-148, -60)])
sketch9.addConstraint([
    Sketcher.Constraint("Horizontal", 0),
    Sketcher.Constraint("Vertical", 1),
    Sketcher.Constraint("Horizontal", 2),
    Sketcher.Constraint("Vertical", 3),
    Sketcher.Constraint("PointOnObject", 0, 2, -1),
    Sketcher.Constraint("DistanceY", 1, 2, 1, 1, Q("60.3 mm")),
    Sketcher.Constraint("DistanceX", 0, 1, 0, 2, Q("33.55 mm")),
    Sketcher.Constraint("DistanceX", 2, 2, -1, 1, Q("147.9 mm")),
])
sketch9.setExpression("Constraints[9]", "Params.sketch9_height")
sketch9.setExpression("Constraints[10]", "Params.sketch9_width")
pad6 = doc.addObject("PartDesign::Pad", "Pad005")
body.addObject(pad6)
pad6.Profile = sketch9
pad6.setExpression("Length", "Params.pad6_length")
pad6.Reversed = True

sketch10 = doc.addObject("Sketcher::SketchObject", "Sketch009")
body.addObject(sketch10)
sketch10.AttachmentSupport = (doc.YZ_Plane, [""])
sketch10.MapMode = "FlatFace"
sketch10.AttachmentOffset = App.Placement(V(0, 0, -38.3), App.Rotation())
add_polygon(sketch10, [(15.2, -58.3), (13.2, -58.3), (13.2, -2), (15.2, -2)])
sketch10.addConstraint([
    Sketcher.Constraint("Horizontal", 0),
    Sketcher.Constraint("Vertical", 1),
    Sketcher.Constraint("Horizontal", 2),
    Sketcher.Constraint("Vertical", 3),
    Sketcher.Constraint("DistanceX", 0, 2, 0, 1, Q("2 mm")),
    Sketcher.Constraint("DistanceY", 1, 1, 1, 2, Q("56.3 mm")),
    Sketcher.Constraint("DistanceY", 1, 2, -1, 1, Q("2 mm")),
    Sketcher.Constraint("DistanceX", -1, 1, 0, 2, Q("13.182094 mm")),
])
sketch10.setExpression("Constraints[8]", "Params.sketch10_width")
sketch10.setExpression("Constraints[9]", "Params.sketch10_height")
pocket4 = doc.addObject("PartDesign::Pocket", "Pocket003")
body.addObject(pocket4)
pocket4.Profile = sketch10
pocket4.setExpression("Length", "Params.pocket4_length")
pocket4.Reversed = True

sketch11 = doc.addObject("Sketcher::SketchObject", "Sketch010")
body.addObject(sketch11)
sketch11.AttachmentSupport = (doc.XZ_Plane, [""])
sketch11.MapMode = "FlatFace"
sketch11.AttachmentOffset = App.Placement(V(0, 0, -14.382094), App.Rotation())
sketch11.addGeometry([
    Part.Circle(V(-117.5, -5.2, 0), V(0, 0, 1), 1.2),
    Part.Circle(V(-117.5, -55.1, 0), V(0, 0, 1), 1.2),
    Part.Circle(V(-144.7, -55.1, 0), V(0, 0, 1), 1.2),
    Part.Circle(V(-144.7, -5.2, 0), V(0, 0, 1), 1.2),
], False)
sketch11.addConstraint([
    Sketcher.Constraint("Equal", 0, 1),
    Sketcher.Constraint("Equal", 1, 2),
    Sketcher.Constraint("Equal", 2, 3),
    Sketcher.Constraint("Horizontal", 1, 3, 2, 3),
    Sketcher.Constraint("Horizontal", 0, 3, 3, 3),
    Sketcher.Constraint("Vertical", 0, 3, 1, 3),
    Sketcher.Constraint("Vertical", 2, 3, 3, 3),
    Sketcher.Constraint("Diameter", 0, Q("2.4 mm")),
    Sketcher.Constraint("DistanceY", 0, 3, -1, 1, Q("5.2 mm")),
    Sketcher.Constraint("DistanceY", 1, 3, -1, 1, Q("55.1 mm")),
    Sketcher.Constraint("DistanceX", 2, 3, -1, 1, Q("144.7 mm")),
    Sketcher.Constraint("DistanceX", 0, 3, -1, 1, Q("117.55 mm")),
])
sketch11.setExpression("Constraints[7]", "Params.sketch11_diameter")
pocket5 = doc.addObject("PartDesign::Pocket", "Pocket004")
body.addObject(pocket5)
pocket5.Profile = sketch11
pocket5.Type = "ThroughAll"
pocket5.Reversed = True

sketch12 = doc.addObject("Sketcher::SketchObject", "Sketch011")
body.addObject(sketch12)
sketch12.AttachmentSupport = (doc.XY_Plane, [""])
sketch12.MapMode = "FlatFace"
sketch12.AttachmentOffset = App.Placement(V(0, 0, 10.33), App.Rotation())
sketch12.addGeometry(Part.Circle(V(-33.3, 32.7, 0), V(0, 0, 1), 1.2), False)
sketch12.addConstraint([
    Sketcher.Constraint("Diameter", 0, Q("2.4 mm")),
    Sketcher.Constraint("DistanceX", 0, 3, -1, 1, Q("33.3 mm")),
    Sketcher.Constraint("DistanceY", -1, 1, 0, 3, Q("32.732094 mm")),
])
sketch12.setExpression("Constraints[0]", "Params.sketch12_diameter")
pocket6 = doc.addObject("PartDesign::Pocket", "Pocket005")
body.addObject(pocket6)
pocket6.Profile = sketch12
pocket6.Type = "ThroughAll"
doc.recompute()

chamfer = doc.addObject("PartDesign::Chamfer", "Chamfer")
body.addObject(chamfer)
chamfer.Base = (pocket6, edges_at(pocket6, [(-31.4, 25.182, -69.47), (-31.4, 25.182, 10.33)]))
chamfer.setExpression("Size", "Params.chamfer_size")

sketch13 = doc.addObject("Sketcher::SketchObject", "Sketch012")
body.addObject(sketch13)
sketch13.AttachmentSupport = (doc.XZ_Plane, [""])
sketch13.MapMode = "FlatFace"
sketch13.AttachmentOffset = App.Placement(V(0, 0, -20.182094), App.Rotation())
add_polygon(sketch13, [(-98, -54), (-98, -6), (-79, -6), (-79, -54)])
sketch13.addConstraint([
    Sketcher.Constraint("Vertical", 0),
    Sketcher.Constraint("Horizontal", 1),
    Sketcher.Constraint("Vertical", 2),
    Sketcher.Constraint("Horizontal", 3),
    Sketcher.Constraint("DistanceX", 1, 1, 1, 2, Q("19 mm")),
    Sketcher.Constraint("DistanceY", 0, 1, 0, 2, Q("48.3 mm")),
    Sketcher.Constraint("DistanceY", 0, 2, -1, 1, Q("6 mm")),
    Sketcher.Constraint("DistanceX", 0, 2, -1, 1, Q("98.35 mm")),
])
sketch13.setExpression("Constraints[8]", "Params.sketch13_width")
sketch13.setExpression("Constraints[9]", "Params.sketch13_height")
pocket7 = doc.addObject("PartDesign::Pocket", "Pocket006")
body.addObject(pocket7)
pocket7.Profile = sketch13
pocket7.setExpression("Length", "Params.pocket7_length")
pocket7.Reversed = True

doc.recompute()
